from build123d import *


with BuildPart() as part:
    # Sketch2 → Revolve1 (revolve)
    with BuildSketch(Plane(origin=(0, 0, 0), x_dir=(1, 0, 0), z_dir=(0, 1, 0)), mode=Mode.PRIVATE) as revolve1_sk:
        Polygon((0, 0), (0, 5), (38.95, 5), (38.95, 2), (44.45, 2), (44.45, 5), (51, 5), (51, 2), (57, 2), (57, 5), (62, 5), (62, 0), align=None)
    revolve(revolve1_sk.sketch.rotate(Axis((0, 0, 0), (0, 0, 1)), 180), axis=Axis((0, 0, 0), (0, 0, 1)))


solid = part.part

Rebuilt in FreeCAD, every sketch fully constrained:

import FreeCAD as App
import Part
import Sketcher
from FreeCAD import Vector


def add_polygon(sketch, points):
    """Adds a closed chain of lines whose ends are joined by coincident constraints."""
    first, n = sketch.GeometryCount, len(points)
    for a, b in zip(points, points[1:] + points[:1]):
        sketch.addGeometry(Part.LineSegment(App.Vector(*a, 0), App.Vector(*b, 0)), False)
    for i in range(n):
        sketch.addConstraint(Sketcher.Constraint("Coincident", first + i, 2, first + (i + 1) % n, 1))

doc = App.newDocument("Part")
body = doc.addObject("PartDesign::Body", "Body")

# Sketch on XZ plane
sketch1 = body.newObject("Sketcher::SketchObject", "Sketch")
sketch1.AttachmentSupport = (doc.getObject("XZ_Plane"), [""])
sketch1.MapMode = "FlatFace"
add_polygon(sketch1, [(0, -5), (0, 0), (62, 0), (62, -5), (57, -5), (57, -2), (51, -2), (51, -5), (44.45, -5), (44.45, -2), (38.95, -2), (38.95, -5)])  # lines 0-11
sketch1.addConstraint([
    Sketcher.Constraint("Vertical", 0),
    Sketcher.Constraint("Horizontal", 1),
    Sketcher.Constraint("Vertical", 2),
    Sketcher.Constraint("Horizontal", 3),
    Sketcher.Constraint("Vertical", 4),
    Sketcher.Constraint("Horizontal", 5),
    Sketcher.Constraint("Vertical", 6),
    Sketcher.Constraint("Horizontal", 7),
    Sketcher.Constraint("Vertical", 8),
    Sketcher.Constraint("Horizontal", 9),
    Sketcher.Constraint("Vertical", 10),
    Sketcher.Constraint("Horizontal", 11),
    Sketcher.Constraint("Coincident", 0, 2, -1, 1),
    Sketcher.Constraint("Horizontal", 3, 2, 6, 2),
    Sketcher.Constraint("Horizontal", 5, 2, 8, 2),
    Sketcher.Constraint("Horizontal", 7, 2, 10, 2),
    Sketcher.Constraint("Equal", 3, 0),
    Sketcher.Constraint("DistanceX", 1, 1, 1, 2, 62.0),
    Sketcher.Constraint("DistanceX", 3, 2, 3, 1, 5.0),
    Sketcher.Constraint("DistanceX", 5, 2, 5, 1, 6.0),
    Sketcher.Constraint("DistanceY", 4, 1, 4, 2, 3.0),
    Sketcher.Constraint("DistanceX", 9, 2, 9, 1, 5.5),
    Sketcher.Constraint("DistanceX", 7, 2, 7, 1, 6.55),
])
revolution = body.newObject("PartDesign::Revolution", "Revolution")
revolution.Profile = sketch1
revolution.ReferenceAxis = (sketch1, ["V_Axis"])
revolution.Angle = 360

doc.recompute()
